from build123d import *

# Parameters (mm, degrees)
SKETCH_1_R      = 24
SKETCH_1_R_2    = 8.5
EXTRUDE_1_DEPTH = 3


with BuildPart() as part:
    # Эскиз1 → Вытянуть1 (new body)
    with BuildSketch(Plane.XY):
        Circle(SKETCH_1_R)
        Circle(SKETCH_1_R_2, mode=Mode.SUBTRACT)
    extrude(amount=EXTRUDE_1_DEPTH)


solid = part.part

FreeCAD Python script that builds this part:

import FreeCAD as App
import Part
import Sketcher

doc = App.newDocument("Part")
params = doc.addObject("Spreadsheet::Sheet", "Params")
for row, (alias, value) in enumerate([
    ("sketch1_diameter", "48 mm"),
    ("sketch1_diameter2", "17 mm"),
    ("pad1_length", "3 mm"),
], start=1):
    params.set(f"A{row}", alias)
    params.set(f"B{row}", "=" + value)
    params.setAlias(f"B{row}", alias)

body = doc.addObject("PartDesign::Body", "Body")

# Sketch on XY plane
sketch1 = doc.addObject("Sketcher::SketchObject", "Sketch")
body.addObject(sketch1)
sketch1.AttachmentSupport = (doc.XY_Plane, [""])
sketch1.MapMode = "FlatFace"
sketch1.addGeometry(Part.Circle(App.Vector(0, 0, 0), App.Vector(0, 0, 1), 24), False)
sketch1.addGeometry(Part.Circle(App.Vector(0, 0, 0), App.Vector(0, 0, 1), 8.5), False)
sketch1.addConstraint(Sketcher.Constraint("Coincident", 0, 3, -1, 1))
sketch1.addConstraint(Sketcher.Constraint("Coincident", 1, 3, -1, 1))
sketch1.addConstraint(Sketcher.Constraint("Diameter", 0, 48.0))
sketch1.addConstraint(Sketcher.Constraint("Diameter", 1, 17.0))
sketch1.setExpression("Constraints[2]", "Params.sketch1_diameter")
sketch1.setExpression("Constraints[3]", "Params.sketch1_diameter2")
pad1 = doc.addObject("PartDesign::Pad", "Pad")
body.addObject(pad1)
pad1.Profile = sketch1
pad1.setExpression("Length", "Params.pad1_length")

doc.recompute()
